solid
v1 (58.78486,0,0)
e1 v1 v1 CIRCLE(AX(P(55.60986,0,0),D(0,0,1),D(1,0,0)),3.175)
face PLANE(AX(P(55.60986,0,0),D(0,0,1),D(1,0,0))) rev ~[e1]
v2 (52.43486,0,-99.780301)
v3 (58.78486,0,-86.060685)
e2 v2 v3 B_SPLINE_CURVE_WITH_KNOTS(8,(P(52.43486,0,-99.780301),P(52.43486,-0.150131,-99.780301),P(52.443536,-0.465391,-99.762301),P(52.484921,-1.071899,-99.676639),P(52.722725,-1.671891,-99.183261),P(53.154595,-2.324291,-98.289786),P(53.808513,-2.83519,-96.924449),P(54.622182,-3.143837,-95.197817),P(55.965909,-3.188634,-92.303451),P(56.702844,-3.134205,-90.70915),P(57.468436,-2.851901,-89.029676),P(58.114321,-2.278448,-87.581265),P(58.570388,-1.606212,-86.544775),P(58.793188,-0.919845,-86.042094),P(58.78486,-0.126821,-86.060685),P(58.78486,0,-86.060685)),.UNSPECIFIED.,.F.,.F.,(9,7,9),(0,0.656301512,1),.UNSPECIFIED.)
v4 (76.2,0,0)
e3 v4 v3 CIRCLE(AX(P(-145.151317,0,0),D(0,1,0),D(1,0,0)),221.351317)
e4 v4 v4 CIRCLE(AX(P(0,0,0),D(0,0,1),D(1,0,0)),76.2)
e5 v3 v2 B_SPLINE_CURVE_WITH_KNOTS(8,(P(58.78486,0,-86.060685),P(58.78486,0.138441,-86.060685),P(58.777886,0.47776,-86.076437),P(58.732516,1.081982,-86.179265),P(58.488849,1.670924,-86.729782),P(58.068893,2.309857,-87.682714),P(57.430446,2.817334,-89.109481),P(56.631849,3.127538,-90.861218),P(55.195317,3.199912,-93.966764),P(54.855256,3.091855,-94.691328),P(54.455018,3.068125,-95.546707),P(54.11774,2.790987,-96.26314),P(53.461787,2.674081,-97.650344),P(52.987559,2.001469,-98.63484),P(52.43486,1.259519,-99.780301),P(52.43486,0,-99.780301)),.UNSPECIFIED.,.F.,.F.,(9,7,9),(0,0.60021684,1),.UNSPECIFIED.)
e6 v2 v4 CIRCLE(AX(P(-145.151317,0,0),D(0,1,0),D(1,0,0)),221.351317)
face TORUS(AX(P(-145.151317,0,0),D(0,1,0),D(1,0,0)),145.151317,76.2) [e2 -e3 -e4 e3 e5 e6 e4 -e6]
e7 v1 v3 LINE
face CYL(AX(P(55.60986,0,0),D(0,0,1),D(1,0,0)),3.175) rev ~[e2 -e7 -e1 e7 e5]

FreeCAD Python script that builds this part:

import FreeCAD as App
import Part
import Sketcher
from FreeCAD import Vector
Q = App.Units.Quantity

doc = App.newDocument("Part")
body = doc.addObject("PartDesign::Body", "Body")

# Sketch on XY plane
sketch1 = doc.addObject("Sketcher::SketchObject", "Sketch")
body.addObject(sketch1)
sketch1.AttachmentSupport = (doc.XY_Plane, [""])
sketch1.MapMode = "FlatFace"
sketch1.addGeometry(Part.Circle(Vector(0, 0, 0), Vector(0, 0, 1), 76), False)
sketch1.addGeometry(Part.LineSegment(Vector(-145, 0, 0), Vector(-145, 10, 0)), True)  # axis
sketch1.addConstraint([
    Sketcher.Constraint("Vertical", 1),
    Sketcher.Constraint("Coincident", 0, 3, -1, 1),
    Sketcher.Constraint("PointOnObject", 1, 1, -1),
    Sketcher.Constraint("Diameter", 0, Q("6 in")),
    Sketcher.Constraint("DistanceY", 1, 1, 1, 2, Q("10 mm")),
    Sketcher.Constraint("DistanceX", 1, 1, -1, 1, Q("145.151317 mm")),
])
revolution = doc.addObject("PartDesign::Revolution", "Revolution")
body.addObject(revolution)
revolution.Profile = sketch1
revolution.ReferenceAxis = (sketch1, ["Axis0"])
revolution.Angle = 360

# Sketch on XY plane
sketch2 = doc.addObject("Sketcher::SketchObject", "Sketch001")
body.addObject(sketch2)
sketch2.AttachmentSupport = (doc.XY_Plane, [""])
sketch2.MapMode = "FlatFace"
sketch2.addGeometry(Part.Circle(Vector(55.6, 0, 0), Vector(0, 0, 1), 3.2), False)
sketch2.addConstraint([
    Sketcher.Constraint("PointOnObject", 0, 3, -1),
    Sketcher.Constraint("Diameter", 0, Q("0.25 in")),
    Sketcher.Constraint("DistanceX", -1, 1, 0, 3, Q("55.60986 mm")),
])
pocket1 = doc.addObject("PartDesign::Pocket", "Pocket")
body.addObject(pocket1)
pocket1.Profile = sketch2
pocket1.Type = "ThroughAll"

doc.recompute()
